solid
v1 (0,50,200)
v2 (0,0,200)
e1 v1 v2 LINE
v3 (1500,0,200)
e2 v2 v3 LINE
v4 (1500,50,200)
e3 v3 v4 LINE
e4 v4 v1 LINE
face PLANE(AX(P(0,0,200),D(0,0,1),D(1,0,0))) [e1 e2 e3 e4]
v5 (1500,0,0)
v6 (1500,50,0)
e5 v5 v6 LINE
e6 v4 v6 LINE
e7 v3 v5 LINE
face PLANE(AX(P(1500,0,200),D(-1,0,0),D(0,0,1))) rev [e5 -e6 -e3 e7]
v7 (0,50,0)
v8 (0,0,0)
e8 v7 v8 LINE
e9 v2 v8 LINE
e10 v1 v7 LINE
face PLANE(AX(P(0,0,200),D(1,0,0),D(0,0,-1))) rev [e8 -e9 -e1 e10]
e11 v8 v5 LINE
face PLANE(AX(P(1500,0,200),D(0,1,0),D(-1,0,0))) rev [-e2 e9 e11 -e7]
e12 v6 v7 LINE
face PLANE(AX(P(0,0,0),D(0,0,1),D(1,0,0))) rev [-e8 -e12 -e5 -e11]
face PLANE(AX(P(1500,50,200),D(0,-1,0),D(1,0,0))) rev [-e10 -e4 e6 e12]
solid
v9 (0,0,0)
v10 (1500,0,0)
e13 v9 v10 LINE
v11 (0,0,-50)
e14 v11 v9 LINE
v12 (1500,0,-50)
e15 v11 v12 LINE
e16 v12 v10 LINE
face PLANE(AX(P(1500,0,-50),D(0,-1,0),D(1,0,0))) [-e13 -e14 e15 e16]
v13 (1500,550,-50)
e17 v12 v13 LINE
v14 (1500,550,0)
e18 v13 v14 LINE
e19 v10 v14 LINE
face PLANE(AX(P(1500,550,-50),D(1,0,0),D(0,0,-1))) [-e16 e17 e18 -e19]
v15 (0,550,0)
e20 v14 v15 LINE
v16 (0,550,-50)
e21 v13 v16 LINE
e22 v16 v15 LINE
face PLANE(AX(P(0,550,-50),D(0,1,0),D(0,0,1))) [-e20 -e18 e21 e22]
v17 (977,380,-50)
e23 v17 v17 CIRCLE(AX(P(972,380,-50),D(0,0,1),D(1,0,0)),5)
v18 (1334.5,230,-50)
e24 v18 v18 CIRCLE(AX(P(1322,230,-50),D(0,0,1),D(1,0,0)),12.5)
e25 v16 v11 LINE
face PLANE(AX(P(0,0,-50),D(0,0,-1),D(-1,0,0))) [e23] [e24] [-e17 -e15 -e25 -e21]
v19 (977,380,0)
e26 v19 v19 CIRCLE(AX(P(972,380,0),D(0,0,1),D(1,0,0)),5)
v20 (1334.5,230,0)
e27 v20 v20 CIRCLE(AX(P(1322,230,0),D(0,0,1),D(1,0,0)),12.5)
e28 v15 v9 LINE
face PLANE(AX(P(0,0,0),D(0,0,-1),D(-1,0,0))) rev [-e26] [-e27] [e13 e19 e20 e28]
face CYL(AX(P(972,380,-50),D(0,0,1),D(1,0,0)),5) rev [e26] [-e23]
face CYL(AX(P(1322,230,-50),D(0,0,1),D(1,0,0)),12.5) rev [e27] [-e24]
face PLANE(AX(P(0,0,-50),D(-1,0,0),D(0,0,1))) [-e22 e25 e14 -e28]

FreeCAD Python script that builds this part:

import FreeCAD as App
import Part
import Sketcher

V = App.Vector
Q = App.Units.Quantity

doc = App.newDocument("Part")
body = doc.addObject("PartDesign::Body", "Body")

# Sketch on XY plane
sketch1 = body.newObject("Sketcher::SketchObject", "Sketch")
sketch1.AttachmentSupport = (doc.getObject("XY_Plane"), [""])
sketch1.MapMode = "FlatFace"
sketch1.addGeometry([
    Part.LineSegment(V(0, 550, 0), V(0, 0, 0)),
    Part.LineSegment(V(0, 0, 0), V(1500, 0, 0)),
    Part.LineSegment(V(1500, 0, 0), V(1500, 550, 0)),
    Part.LineSegment(V(1500, 550, 0), V(0, 550, 0)),
], False)
sketch1.addConstraint([
    Sketcher.Constraint("Coincident", 0, 2, 1, 1),
    Sketcher.Constraint("Coincident", 1, 2, 2, 1),
    Sketcher.Constraint("Coincident", 2, 2, 3, 1),
    Sketcher.Constraint("Coincident", 3, 2, 0, 1),
    Sketcher.Constraint("Vertical", 0),
    Sketcher.Constraint("Horizontal", 1),
    Sketcher.Constraint("Vertical", 2),
    Sketcher.Constraint("Horizontal", 3),
    Sketcher.Constraint("Coincident", 0, 2, -1, 1),
    Sketcher.Constraint("DistanceX", 1, 1, 1, 2, Q("1500 mm")),
    Sketcher.Constraint("DistanceY", 0, 2, 0, 1, Q("550 mm")),
])
pad1 = body.newObject("PartDesign::Pad", "Pad")
pad1.Profile = sketch1
pad1.Length = 50
pad1.Reversed = True

# Sketch on XY plane
sketch2 = body.newObject("Sketcher::SketchObject", "Sketch001")
sketch2.AttachmentSupport = (doc.getObject("XY_Plane"), [""])
sketch2.MapMode = "FlatFace"
sketch2.addGeometry([
    Part.Circle(V(1322, 230, 0), V(0, 0, 1), 12),
    Part.Circle(V(972, 380, 0), V(0, 0, 1), 5),
], False)
sketch2.addConstraint([
    Sketcher.Constraint("Diameter", 0, Q("25 mm")),
    Sketcher.Constraint("Diameter", 1, Q("10 mm")),
    Sketcher.Constraint("DistanceX", -1, 1, 0, 3, Q("1322 mm")),
    Sketcher.Constraint("DistanceY", -1, 1, 0, 3, Q("230 mm")),
    Sketcher.Constraint("DistanceX", -1, 1, 1, 3, Q("972 mm")),
    Sketcher.Constraint("DistanceY", -1, 1, 1, 3, Q("380 mm")),
])
pocket1 = body.newObject("PartDesign::Pocket", "Pocket")
pocket1.Profile = sketch2
pocket1.Type = "ThroughAll"
body2 = doc.addObject("PartDesign::Body", "Body001")

# Sketch on XY plane
sketch3 = body2.newObject("Sketcher::SketchObject", "Sketch002")
sketch3.AttachmentSupport = (doc.getObject("XY_Plane001"), [""])
sketch3.MapMode = "FlatFace"
sketch3.addGeometry([
    Part.LineSegment(V(0, 50, 0), V(0, 0, 0)),
    Part.LineSegment(V(0, 0, 0), V(1500, 0, 0)),
    Part.LineSegment(V(1500, 0, 0), V(1500, 50, 0)),
    Part.LineSegment(V(1500, 50, 0), V(0, 50, 0)),
], False)
sketch3.addConstraint([
    Sketcher.Constraint("Coincident", 0, 2, 1, 1),
    Sketcher.Constraint("Coincident", 1, 2, 2, 1),
    Sketcher.Constraint("Coincident", 2, 2, 3, 1),
    Sketcher.Constraint("Coincident", 3, 2, 0, 1),
    Sketcher.Constraint("Vertical", 0),
    Sketcher.Constraint("Horizontal", 1),
    Sketcher.Constraint("Vertical", 2),
    Sketcher.Constraint("Horizontal", 3),
    Sketcher.Constraint("Coincident", 0, 2, -1, 1),
    Sketcher.Constraint("DistanceX", 1, 1, 1, 2, Q("1500 mm")),
    Sketcher.Constraint("DistanceY", 0, 2, 0, 1, Q("50 mm")),
])
pad2 = body2.newObject("PartDesign::Pad", "Pad001")
pad2.Profile = sketch3
pad2.Length = 200

doc.recompute()
